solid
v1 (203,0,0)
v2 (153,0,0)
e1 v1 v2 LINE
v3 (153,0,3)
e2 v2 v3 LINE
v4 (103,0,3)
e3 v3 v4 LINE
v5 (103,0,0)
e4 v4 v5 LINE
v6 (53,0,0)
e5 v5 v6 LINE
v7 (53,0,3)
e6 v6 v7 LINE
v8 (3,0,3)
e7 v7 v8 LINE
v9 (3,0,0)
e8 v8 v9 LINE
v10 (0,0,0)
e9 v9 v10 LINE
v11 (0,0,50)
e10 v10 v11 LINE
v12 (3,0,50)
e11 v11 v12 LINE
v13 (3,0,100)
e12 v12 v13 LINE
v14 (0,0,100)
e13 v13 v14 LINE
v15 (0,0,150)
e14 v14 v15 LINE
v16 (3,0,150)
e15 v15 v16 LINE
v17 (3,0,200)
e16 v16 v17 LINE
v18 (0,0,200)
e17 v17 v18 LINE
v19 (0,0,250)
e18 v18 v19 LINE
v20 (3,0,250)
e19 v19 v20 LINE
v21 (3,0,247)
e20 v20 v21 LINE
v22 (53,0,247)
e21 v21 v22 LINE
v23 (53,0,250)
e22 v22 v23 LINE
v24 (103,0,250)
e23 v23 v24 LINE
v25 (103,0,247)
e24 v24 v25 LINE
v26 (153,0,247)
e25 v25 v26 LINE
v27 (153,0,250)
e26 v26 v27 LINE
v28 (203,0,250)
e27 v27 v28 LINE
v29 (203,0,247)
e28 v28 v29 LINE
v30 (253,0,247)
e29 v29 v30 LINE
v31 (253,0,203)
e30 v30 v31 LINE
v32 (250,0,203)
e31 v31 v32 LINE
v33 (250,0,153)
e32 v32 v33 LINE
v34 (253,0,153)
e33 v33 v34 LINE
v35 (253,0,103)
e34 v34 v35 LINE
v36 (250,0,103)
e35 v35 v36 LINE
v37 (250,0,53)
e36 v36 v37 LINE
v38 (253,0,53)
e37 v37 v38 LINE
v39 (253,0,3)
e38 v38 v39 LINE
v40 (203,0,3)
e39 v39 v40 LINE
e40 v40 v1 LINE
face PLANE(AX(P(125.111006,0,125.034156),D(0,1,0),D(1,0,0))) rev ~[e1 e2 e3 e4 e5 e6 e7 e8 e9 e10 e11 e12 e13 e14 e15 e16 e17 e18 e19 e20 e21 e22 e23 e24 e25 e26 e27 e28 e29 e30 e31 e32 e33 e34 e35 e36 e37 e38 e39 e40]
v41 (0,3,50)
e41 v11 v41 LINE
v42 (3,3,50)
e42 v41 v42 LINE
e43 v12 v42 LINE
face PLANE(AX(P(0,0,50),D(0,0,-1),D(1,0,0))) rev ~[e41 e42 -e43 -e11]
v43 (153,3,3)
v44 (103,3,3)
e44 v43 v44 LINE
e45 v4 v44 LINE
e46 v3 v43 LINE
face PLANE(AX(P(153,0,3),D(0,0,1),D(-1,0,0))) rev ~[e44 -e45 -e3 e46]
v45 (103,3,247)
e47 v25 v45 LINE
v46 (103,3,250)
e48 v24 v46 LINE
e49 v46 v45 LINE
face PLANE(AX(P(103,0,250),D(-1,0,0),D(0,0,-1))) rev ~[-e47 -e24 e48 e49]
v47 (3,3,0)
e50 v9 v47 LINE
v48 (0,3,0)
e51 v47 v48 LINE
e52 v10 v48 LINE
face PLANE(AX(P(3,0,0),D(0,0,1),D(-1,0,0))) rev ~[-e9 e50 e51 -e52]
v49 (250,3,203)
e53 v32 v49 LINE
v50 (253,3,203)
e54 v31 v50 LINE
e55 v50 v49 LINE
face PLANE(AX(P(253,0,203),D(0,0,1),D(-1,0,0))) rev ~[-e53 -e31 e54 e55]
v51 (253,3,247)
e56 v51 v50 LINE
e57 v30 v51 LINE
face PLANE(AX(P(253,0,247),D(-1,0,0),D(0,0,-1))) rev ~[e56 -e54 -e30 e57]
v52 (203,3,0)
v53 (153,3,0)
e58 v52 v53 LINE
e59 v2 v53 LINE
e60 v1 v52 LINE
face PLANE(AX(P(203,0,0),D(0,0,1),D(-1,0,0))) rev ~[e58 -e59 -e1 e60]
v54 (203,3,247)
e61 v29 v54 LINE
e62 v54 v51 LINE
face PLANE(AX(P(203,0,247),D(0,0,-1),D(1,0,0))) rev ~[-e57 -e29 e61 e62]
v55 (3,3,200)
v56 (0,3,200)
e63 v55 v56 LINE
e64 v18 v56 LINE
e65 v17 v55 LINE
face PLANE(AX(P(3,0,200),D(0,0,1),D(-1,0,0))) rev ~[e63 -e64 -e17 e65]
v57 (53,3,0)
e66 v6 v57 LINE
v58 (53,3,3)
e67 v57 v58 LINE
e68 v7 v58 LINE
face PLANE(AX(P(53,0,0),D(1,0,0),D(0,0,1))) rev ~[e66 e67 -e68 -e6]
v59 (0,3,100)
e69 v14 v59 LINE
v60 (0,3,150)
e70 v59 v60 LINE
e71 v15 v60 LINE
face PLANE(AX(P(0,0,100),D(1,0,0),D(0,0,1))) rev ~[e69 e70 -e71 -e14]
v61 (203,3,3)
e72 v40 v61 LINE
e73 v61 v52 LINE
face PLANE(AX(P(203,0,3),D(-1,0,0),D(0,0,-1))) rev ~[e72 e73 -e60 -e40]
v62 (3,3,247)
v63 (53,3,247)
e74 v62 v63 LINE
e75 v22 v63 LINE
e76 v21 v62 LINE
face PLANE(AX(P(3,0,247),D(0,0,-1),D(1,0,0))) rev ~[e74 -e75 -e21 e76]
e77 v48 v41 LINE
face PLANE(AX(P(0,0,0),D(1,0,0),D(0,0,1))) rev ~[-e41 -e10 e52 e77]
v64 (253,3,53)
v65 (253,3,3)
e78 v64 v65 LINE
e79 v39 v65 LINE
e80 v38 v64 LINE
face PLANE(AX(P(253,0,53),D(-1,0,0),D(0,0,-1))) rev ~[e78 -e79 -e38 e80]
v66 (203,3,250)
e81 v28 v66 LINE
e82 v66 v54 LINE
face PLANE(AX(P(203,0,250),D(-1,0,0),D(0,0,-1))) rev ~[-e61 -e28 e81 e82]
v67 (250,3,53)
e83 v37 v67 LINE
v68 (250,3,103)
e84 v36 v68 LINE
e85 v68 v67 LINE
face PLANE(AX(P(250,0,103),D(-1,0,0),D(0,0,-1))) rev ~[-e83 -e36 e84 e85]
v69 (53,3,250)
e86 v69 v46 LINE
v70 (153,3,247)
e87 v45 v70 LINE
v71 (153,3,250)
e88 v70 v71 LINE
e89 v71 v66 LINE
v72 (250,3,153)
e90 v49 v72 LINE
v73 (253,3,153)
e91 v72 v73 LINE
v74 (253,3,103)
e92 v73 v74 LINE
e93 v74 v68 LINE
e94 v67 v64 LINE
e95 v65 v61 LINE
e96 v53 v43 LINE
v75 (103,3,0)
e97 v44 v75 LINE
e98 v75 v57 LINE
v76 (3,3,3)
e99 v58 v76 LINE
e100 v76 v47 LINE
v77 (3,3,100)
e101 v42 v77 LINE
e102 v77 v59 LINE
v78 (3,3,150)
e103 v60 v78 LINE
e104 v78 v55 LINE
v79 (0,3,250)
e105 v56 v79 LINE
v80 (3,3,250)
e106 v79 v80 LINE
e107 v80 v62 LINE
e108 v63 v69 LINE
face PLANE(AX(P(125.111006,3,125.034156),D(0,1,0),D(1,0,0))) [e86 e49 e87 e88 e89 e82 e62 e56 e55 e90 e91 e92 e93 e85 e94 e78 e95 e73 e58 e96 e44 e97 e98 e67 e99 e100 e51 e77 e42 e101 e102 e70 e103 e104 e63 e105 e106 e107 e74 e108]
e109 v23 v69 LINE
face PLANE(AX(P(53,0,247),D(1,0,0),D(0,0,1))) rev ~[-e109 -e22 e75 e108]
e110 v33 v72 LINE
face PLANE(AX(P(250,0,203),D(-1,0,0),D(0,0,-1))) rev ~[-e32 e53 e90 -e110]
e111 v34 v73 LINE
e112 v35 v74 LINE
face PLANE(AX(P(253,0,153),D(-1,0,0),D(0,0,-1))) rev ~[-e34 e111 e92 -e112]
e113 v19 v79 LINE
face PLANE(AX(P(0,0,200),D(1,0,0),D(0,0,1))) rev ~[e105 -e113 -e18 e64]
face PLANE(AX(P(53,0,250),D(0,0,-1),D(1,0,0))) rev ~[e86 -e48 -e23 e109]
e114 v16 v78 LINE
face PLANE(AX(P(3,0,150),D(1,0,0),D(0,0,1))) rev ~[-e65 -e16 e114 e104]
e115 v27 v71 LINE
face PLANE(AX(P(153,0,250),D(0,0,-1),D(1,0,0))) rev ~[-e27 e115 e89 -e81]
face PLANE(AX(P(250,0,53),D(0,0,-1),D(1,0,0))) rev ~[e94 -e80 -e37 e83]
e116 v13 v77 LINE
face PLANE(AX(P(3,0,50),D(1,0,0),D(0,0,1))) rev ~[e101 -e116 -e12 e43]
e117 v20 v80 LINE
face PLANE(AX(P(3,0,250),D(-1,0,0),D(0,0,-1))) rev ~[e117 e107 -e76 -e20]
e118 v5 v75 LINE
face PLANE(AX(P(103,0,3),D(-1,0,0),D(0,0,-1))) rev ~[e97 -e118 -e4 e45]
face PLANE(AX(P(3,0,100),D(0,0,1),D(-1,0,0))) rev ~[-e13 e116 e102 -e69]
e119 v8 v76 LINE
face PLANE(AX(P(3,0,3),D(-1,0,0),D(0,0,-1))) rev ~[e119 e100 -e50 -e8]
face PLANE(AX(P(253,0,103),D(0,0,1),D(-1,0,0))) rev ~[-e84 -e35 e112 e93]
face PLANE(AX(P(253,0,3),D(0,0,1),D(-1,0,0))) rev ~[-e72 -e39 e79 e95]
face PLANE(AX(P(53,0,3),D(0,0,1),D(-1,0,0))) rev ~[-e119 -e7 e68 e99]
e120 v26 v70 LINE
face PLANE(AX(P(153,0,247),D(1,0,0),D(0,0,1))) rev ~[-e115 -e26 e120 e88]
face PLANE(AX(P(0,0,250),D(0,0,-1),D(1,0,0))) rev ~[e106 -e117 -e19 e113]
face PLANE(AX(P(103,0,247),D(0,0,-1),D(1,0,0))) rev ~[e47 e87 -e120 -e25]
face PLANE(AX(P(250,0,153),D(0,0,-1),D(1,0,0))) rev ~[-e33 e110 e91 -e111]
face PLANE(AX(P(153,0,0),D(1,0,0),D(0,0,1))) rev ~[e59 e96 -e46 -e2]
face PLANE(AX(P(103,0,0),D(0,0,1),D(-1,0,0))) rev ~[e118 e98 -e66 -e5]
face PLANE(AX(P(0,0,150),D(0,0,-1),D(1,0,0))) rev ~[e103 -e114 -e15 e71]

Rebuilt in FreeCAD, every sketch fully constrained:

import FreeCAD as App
import Part
import Sketcher
Q = App.Units.Quantity

doc = App.newDocument("Part")
body = doc.addObject("PartDesign::Body", "Body")

# Sketch on XZ plane
sketch1 = body.newObject("Sketcher::SketchObject", "Sketch")
sketch1.AttachmentSupport = (doc.getObject("XZ_Plane"), [""])
sketch1.MapMode = "FlatFace"
sketch1.addGeometry([
    Part.LineSegment(App.Vector(253, 53, 0), App.Vector(253, 3, 0)),  # 0
    Part.LineSegment(App.Vector(253, 3, 0), App.Vector(203, 3, 0)),  # 1
    Part.LineSegment(App.Vector(203, 3, 0), App.Vector(203, 0, 0)),  # 2
    Part.LineSegment(App.Vector(203, 0, 0), App.Vector(153, 0, 0)),  # 3
    Part.LineSegment(App.Vector(153, 0, 0), App.Vector(153, 3, 0)),  # 4
    Part.LineSegment(App.Vector(153, 3, 0), App.Vector(103, 3, 0)),  # 5
    Part.LineSegment(App.Vector(103, 3, 0), App.Vector(103, 0, 0)),  # 6
    Part.LineSegment(App.Vector(103, 0, 0), App.Vector(53, 0, 0)),  # 7
    Part.LineSegment(App.Vector(53, 0, 0), App.Vector(53, 3, 0)),  # 8
    Part.LineSegment(App.Vector(53, 3, 0), App.Vector(3, 3, 0)),  # 9
    Part.LineSegment(App.Vector(3, 3, 0), App.Vector(3, 0, 0)),  # 10
    Part.LineSegment(App.Vector(3, 0, 0), App.Vector(0, 0, 0)),  # 11
    Part.LineSegment(App.Vector(0, 0, 0), App.Vector(0, 50, 0)),  # 12
    Part.LineSegment(App.Vector(0, 50, 0), App.Vector(3, 50, 0)),  # 13
    Part.LineSegment(App.Vector(3, 50, 0), App.Vector(3, 100, 0)),  # 14
    Part.LineSegment(App.Vector(3, 100, 0), App.Vector(0, 100, 0)),  # 15
    Part.LineSegment(App.Vector(0, 100, 0), App.Vector(0, 150, 0)),  # 16
    Part.LineSegment(App.Vector(0, 150, 0), App.Vector(3, 150, 0)),  # 17
    Part.LineSegment(App.Vector(3, 150, 0), App.Vector(3, 200, 0)),  # 18
    Part.LineSegment(App.Vector(3, 200, 0), App.Vector(0, 200, 0)),  # 19
    Part.LineSegment(App.Vector(0, 200, 0), App.Vector(0, 250, 0)),  # 20
    Part.LineSegment(App.Vector(0, 250, 0), App.Vector(3, 250, 0)),  # 21
    Part.LineSegment(App.Vector(3, 250, 0), App.Vector(3, 247, 0)),  # 22
    Part.LineSegment(App.Vector(3, 247, 0), App.Vector(53, 247, 0)),  # 23
    Part.LineSegment(App.Vector(53, 247, 0), App.Vector(53, 250, 0)),  # 24
    Part.LineSegment(App.Vector(53, 250, 0), App.Vector(103, 250, 0)),  # 25
    Part.LineSegment(App.Vector(103, 250, 0), App.Vector(103, 247, 0)),  # 26
    Part.LineSegment(App.Vector(103, 247, 0), App.Vector(153, 247, 0)),  # 27
    Part.LineSegment(App.Vector(153, 247, 0), App.Vector(153, 250, 0)),  # 28
    Part.LineSegment(App.Vector(153, 250, 0), App.Vector(203, 250, 0)),  # 29
    Part.LineSegment(App.Vector(203, 250, 0), App.Vector(203, 247, 0)),  # 30
    Part.LineSegment(App.Vector(203, 247, 0), App.Vector(253, 247, 0)),  # 31
    Part.LineSegment(App.Vector(253, 247, 0), App.Vector(253, 203, 0)),  # 32
    Part.LineSegment(App.Vector(253, 203, 0), App.Vector(250, 203, 0)),  # 33
    Part.LineSegment(App.Vector(250, 203, 0), App.Vector(250, 153, 0)),  # 34
    Part.LineSegment(App.Vector(250, 153, 0), App.Vector(253, 153, 0)),  # 35
    Part.LineSegment(App.Vector(253, 153, 0), App.Vector(253, 103, 0)),  # 36
    Part.LineSegment(App.Vector(253, 103, 0), App.Vector(250, 103, 0)),  # 37
    Part.LineSegment(App.Vector(250, 103, 0), App.Vector(250, 53, 0)),  # 38
    Part.LineSegment(App.Vector(250, 53, 0), App.Vector(253, 53, 0)),  # 39
], False)
sketch1.addConstraint([
    Sketcher.Constraint("Coincident", 0, 2, 1, 1),
    Sketcher.Constraint("Coincident", 1, 2, 2, 1),
    Sketcher.Constraint("Coincident", 2, 2, 3, 1),
    Sketcher.Constraint("Coincident", 3, 2, 4, 1),
    Sketcher.Constraint("Coincident", 4, 2, 5, 1),
    Sketcher.Constraint("Coincident", 5, 2, 6, 1),
    Sketcher.Constraint("Coincident", 6, 2, 7, 1),
    Sketcher.Constraint("Coincident", 7, 2, 8, 1),
    Sketcher.Constraint("Coincident", 8, 2, 9, 1),
    Sketcher.Constraint("Coincident", 9, 2, 10, 1),
    Sketcher.Constraint("Coincident", 10, 2, 11, 1),
    Sketcher.Constraint("Coincident", 11, 2, 12, 1),
    Sketcher.Constraint("Coincident", 12, 2, 13, 1),
    Sketcher.Constraint("Coincident", 13, 2, 14, 1),
    Sketcher.Constraint("Coincident", 14, 2, 15, 1),
    Sketcher.Constraint("Coincident", 15, 2, 16, 1),
    Sketcher.Constraint("Coincident", 16, 2, 17, 1),
    Sketcher.Constraint("Coincident", 17, 2, 18, 1),
    Sketcher.Constraint("Coincident", 18, 2, 19, 1),
    Sketcher.Constraint("Coincident", 19, 2, 20, 1),
    Sketcher.Constraint("Coincident", 20, 2, 21, 1),
    Sketcher.Constraint("Coincident", 21, 2, 22, 1),
    Sketcher.Constraint("Coincident", 22, 2, 23, 1),
    Sketcher.Constraint("Coincident", 23, 2, 24, 1),
    Sketcher.Constraint("Coincident", 24, 2, 25, 1),
    Sketcher.Constraint("Coincident", 25, 2, 26, 1),
    Sketcher.Constraint("Coincident", 26, 2, 27, 1),
    Sketcher.Constraint("Coincident", 27, 2, 28, 1),
    Sketcher.Constraint("Coincident", 28, 2, 29, 1),
    Sketcher.Constraint("Coincident", 29, 2, 30, 1),
    Sketcher.Constraint("Coincident", 30, 2, 31, 1),
    Sketcher.Constraint("Coincident", 31, 2, 32, 1),
    Sketcher.Constraint("Coincident", 32, 2, 33, 1),
    Sketcher.Constraint("Coincident", 33, 2, 34, 1),
    Sketcher.Constraint("Coincident", 34, 2, 35, 1),
    Sketcher.Constraint("Coincident", 35, 2, 36, 1),
    Sketcher.Constraint("Coincident", 36, 2, 37, 1),
    Sketcher.Constraint("Coincident", 37, 2, 38, 1),
    Sketcher.Constraint("Coincident", 38, 2, 39, 1),
    Sketcher.Constraint("Coincident", 39, 2, 0, 1),
    Sketcher.Constraint("Vertical", 0),
    Sketcher.Constraint("Horizontal", 1),
    Sketcher.Constraint("Vertical", 2),
    Sketcher.Constraint("Horizontal", 3),
    Sketcher.Constraint("Vertical", 4),
    Sketcher.Constraint("Horizontal", 5),
    Sketcher.Constraint("Vertical", 6),
    Sketcher.Constraint("Horizontal", 7),
    Sketcher.Constraint("Vertical", 8),
    Sketcher.Constraint("Horizontal", 9),
    Sketcher.Constraint("Vertical", 10),
    Sketcher.Constraint("Horizontal", 11),
    Sketcher.Constraint("Vertical", 12),
    Sketcher.Constraint("Horizontal", 13),
    Sketcher.Constraint("Vertical", 14),
    Sketcher.Constraint("Horizontal", 15),
    Sketcher.Constraint("Vertical", 16),
    Sketcher.Constraint("Horizontal", 17),
    Sketcher.Constraint("Vertical", 18),
    Sketcher.Constraint("Horizontal", 19),
    Sketcher.Constraint("Vertical", 20),
    Sketcher.Constraint("Horizontal", 21),
    Sketcher.Constraint("Vertical", 22),
    Sketcher.Constraint("Horizontal", 23),
    Sketcher.Constraint("Vertical", 24),
    Sketcher.Constraint("Horizontal", 25),
    Sketcher.Constraint("Vertical", 26),
    Sketcher.Constraint("Horizontal", 27),
    Sketcher.Constraint("Vertical", 28),
    Sketcher.Constraint("Horizontal", 29),
    Sketcher.Constraint("Vertical", 30),
    Sketcher.Constraint("Horizontal", 31),
    Sketcher.Constraint("Vertical", 32),
    Sketcher.Constraint("Horizontal", 33),
    Sketcher.Constraint("Vertical", 34),
    Sketcher.Constraint("Horizontal", 35),
    Sketcher.Constraint("Vertical", 36),
    Sketcher.Constraint("Horizontal", 37),
    Sketcher.Constraint("Vertical", 38),
    Sketcher.Constraint("Horizontal", 39),
    Sketcher.Constraint("Coincident", 11, 2, -1, 1),
    Sketcher.Constraint("PointOnObject", 2, 2, -1),
    Sketcher.Constraint("PointOnObject", 6, 2, -1),
    Sketcher.Constraint("PointOnObject", 15, 2, -2),
    Sketcher.Constraint("PointOnObject", 19, 2, -2),
    Sketcher.Constraint("Horizontal", 1, 2, 4, 2),
    Sketcher.Constraint("Horizontal", 5, 2, 8, 2),
    Sketcher.Constraint("Horizontal", 21, 2, 24, 2),
    Sketcher.Constraint("Horizontal", 23, 2, 26, 2),
    Sketcher.Constraint("Horizontal", 25, 2, 28, 2),
    Sketcher.Constraint("Horizontal", 27, 2, 30, 2),
    Sketcher.Constraint("Vertical", 10, 2, 13, 2),
    Sketcher.Constraint("Vertical", 14, 2, 17, 2),
    Sketcher.Constraint("Vertical", 18, 2, 21, 2),
    Sketcher.Constraint("Vertical", 8, 2, 23, 2),
    Sketcher.Constraint("Vertical", 6, 2, 25, 2),
    Sketcher.Constraint("Vertical", 4, 2, 27, 2),
    Sketcher.Constraint("Vertical", 2, 2, 29, 2),
    Sketcher.Constraint("Vertical", 0, 2, 31, 2),
    Sketcher.Constraint("Vertical", 32, 2, 35, 2),
    Sketcher.Constraint("Vertical", 34, 2, 37, 2),
    Sketcher.Constraint("Equal", 1, 3),
    Sketcher.Constraint("Equal", 3, 5),
    Sketcher.Constraint("Equal", 5, 7),
    Sketcher.Constraint("Equal", 7, 9),
    Sketcher.Constraint("Equal", 21, 33),
    Sketcher.Constraint("Equal", 31, 0),
    Sketcher.Constraint("Equal", 39, 2),
    Sketcher.Constraint("Equal", 0, 12),
    Sketcher.Constraint("Equal", 12, 14),
    Sketcher.Constraint("Equal", 14, 16),
    Sketcher.Constraint("Equal", 16, 18),
    Sketcher.Constraint("Equal", 18, 20),
    Sketcher.Constraint("Equal", 10, 22),
    Sketcher.Constraint("Equal", 20, 34),
    Sketcher.Constraint("Equal", 34, 36),
    Sketcher.Constraint("Equal", 36, 38),
    Sketcher.Constraint("DistanceX", 1, 2, 1, 1, Q("50 mm")),
    Sketcher.Constraint("DistanceX", 11, 2, 11, 1, Q("3 mm")),
])
pad1 = body.newObject("PartDesign::Pad", "Pad")
pad1.Profile = sketch1
pad1.Length = 3
pad1.Reversed = True

doc.recompute()
